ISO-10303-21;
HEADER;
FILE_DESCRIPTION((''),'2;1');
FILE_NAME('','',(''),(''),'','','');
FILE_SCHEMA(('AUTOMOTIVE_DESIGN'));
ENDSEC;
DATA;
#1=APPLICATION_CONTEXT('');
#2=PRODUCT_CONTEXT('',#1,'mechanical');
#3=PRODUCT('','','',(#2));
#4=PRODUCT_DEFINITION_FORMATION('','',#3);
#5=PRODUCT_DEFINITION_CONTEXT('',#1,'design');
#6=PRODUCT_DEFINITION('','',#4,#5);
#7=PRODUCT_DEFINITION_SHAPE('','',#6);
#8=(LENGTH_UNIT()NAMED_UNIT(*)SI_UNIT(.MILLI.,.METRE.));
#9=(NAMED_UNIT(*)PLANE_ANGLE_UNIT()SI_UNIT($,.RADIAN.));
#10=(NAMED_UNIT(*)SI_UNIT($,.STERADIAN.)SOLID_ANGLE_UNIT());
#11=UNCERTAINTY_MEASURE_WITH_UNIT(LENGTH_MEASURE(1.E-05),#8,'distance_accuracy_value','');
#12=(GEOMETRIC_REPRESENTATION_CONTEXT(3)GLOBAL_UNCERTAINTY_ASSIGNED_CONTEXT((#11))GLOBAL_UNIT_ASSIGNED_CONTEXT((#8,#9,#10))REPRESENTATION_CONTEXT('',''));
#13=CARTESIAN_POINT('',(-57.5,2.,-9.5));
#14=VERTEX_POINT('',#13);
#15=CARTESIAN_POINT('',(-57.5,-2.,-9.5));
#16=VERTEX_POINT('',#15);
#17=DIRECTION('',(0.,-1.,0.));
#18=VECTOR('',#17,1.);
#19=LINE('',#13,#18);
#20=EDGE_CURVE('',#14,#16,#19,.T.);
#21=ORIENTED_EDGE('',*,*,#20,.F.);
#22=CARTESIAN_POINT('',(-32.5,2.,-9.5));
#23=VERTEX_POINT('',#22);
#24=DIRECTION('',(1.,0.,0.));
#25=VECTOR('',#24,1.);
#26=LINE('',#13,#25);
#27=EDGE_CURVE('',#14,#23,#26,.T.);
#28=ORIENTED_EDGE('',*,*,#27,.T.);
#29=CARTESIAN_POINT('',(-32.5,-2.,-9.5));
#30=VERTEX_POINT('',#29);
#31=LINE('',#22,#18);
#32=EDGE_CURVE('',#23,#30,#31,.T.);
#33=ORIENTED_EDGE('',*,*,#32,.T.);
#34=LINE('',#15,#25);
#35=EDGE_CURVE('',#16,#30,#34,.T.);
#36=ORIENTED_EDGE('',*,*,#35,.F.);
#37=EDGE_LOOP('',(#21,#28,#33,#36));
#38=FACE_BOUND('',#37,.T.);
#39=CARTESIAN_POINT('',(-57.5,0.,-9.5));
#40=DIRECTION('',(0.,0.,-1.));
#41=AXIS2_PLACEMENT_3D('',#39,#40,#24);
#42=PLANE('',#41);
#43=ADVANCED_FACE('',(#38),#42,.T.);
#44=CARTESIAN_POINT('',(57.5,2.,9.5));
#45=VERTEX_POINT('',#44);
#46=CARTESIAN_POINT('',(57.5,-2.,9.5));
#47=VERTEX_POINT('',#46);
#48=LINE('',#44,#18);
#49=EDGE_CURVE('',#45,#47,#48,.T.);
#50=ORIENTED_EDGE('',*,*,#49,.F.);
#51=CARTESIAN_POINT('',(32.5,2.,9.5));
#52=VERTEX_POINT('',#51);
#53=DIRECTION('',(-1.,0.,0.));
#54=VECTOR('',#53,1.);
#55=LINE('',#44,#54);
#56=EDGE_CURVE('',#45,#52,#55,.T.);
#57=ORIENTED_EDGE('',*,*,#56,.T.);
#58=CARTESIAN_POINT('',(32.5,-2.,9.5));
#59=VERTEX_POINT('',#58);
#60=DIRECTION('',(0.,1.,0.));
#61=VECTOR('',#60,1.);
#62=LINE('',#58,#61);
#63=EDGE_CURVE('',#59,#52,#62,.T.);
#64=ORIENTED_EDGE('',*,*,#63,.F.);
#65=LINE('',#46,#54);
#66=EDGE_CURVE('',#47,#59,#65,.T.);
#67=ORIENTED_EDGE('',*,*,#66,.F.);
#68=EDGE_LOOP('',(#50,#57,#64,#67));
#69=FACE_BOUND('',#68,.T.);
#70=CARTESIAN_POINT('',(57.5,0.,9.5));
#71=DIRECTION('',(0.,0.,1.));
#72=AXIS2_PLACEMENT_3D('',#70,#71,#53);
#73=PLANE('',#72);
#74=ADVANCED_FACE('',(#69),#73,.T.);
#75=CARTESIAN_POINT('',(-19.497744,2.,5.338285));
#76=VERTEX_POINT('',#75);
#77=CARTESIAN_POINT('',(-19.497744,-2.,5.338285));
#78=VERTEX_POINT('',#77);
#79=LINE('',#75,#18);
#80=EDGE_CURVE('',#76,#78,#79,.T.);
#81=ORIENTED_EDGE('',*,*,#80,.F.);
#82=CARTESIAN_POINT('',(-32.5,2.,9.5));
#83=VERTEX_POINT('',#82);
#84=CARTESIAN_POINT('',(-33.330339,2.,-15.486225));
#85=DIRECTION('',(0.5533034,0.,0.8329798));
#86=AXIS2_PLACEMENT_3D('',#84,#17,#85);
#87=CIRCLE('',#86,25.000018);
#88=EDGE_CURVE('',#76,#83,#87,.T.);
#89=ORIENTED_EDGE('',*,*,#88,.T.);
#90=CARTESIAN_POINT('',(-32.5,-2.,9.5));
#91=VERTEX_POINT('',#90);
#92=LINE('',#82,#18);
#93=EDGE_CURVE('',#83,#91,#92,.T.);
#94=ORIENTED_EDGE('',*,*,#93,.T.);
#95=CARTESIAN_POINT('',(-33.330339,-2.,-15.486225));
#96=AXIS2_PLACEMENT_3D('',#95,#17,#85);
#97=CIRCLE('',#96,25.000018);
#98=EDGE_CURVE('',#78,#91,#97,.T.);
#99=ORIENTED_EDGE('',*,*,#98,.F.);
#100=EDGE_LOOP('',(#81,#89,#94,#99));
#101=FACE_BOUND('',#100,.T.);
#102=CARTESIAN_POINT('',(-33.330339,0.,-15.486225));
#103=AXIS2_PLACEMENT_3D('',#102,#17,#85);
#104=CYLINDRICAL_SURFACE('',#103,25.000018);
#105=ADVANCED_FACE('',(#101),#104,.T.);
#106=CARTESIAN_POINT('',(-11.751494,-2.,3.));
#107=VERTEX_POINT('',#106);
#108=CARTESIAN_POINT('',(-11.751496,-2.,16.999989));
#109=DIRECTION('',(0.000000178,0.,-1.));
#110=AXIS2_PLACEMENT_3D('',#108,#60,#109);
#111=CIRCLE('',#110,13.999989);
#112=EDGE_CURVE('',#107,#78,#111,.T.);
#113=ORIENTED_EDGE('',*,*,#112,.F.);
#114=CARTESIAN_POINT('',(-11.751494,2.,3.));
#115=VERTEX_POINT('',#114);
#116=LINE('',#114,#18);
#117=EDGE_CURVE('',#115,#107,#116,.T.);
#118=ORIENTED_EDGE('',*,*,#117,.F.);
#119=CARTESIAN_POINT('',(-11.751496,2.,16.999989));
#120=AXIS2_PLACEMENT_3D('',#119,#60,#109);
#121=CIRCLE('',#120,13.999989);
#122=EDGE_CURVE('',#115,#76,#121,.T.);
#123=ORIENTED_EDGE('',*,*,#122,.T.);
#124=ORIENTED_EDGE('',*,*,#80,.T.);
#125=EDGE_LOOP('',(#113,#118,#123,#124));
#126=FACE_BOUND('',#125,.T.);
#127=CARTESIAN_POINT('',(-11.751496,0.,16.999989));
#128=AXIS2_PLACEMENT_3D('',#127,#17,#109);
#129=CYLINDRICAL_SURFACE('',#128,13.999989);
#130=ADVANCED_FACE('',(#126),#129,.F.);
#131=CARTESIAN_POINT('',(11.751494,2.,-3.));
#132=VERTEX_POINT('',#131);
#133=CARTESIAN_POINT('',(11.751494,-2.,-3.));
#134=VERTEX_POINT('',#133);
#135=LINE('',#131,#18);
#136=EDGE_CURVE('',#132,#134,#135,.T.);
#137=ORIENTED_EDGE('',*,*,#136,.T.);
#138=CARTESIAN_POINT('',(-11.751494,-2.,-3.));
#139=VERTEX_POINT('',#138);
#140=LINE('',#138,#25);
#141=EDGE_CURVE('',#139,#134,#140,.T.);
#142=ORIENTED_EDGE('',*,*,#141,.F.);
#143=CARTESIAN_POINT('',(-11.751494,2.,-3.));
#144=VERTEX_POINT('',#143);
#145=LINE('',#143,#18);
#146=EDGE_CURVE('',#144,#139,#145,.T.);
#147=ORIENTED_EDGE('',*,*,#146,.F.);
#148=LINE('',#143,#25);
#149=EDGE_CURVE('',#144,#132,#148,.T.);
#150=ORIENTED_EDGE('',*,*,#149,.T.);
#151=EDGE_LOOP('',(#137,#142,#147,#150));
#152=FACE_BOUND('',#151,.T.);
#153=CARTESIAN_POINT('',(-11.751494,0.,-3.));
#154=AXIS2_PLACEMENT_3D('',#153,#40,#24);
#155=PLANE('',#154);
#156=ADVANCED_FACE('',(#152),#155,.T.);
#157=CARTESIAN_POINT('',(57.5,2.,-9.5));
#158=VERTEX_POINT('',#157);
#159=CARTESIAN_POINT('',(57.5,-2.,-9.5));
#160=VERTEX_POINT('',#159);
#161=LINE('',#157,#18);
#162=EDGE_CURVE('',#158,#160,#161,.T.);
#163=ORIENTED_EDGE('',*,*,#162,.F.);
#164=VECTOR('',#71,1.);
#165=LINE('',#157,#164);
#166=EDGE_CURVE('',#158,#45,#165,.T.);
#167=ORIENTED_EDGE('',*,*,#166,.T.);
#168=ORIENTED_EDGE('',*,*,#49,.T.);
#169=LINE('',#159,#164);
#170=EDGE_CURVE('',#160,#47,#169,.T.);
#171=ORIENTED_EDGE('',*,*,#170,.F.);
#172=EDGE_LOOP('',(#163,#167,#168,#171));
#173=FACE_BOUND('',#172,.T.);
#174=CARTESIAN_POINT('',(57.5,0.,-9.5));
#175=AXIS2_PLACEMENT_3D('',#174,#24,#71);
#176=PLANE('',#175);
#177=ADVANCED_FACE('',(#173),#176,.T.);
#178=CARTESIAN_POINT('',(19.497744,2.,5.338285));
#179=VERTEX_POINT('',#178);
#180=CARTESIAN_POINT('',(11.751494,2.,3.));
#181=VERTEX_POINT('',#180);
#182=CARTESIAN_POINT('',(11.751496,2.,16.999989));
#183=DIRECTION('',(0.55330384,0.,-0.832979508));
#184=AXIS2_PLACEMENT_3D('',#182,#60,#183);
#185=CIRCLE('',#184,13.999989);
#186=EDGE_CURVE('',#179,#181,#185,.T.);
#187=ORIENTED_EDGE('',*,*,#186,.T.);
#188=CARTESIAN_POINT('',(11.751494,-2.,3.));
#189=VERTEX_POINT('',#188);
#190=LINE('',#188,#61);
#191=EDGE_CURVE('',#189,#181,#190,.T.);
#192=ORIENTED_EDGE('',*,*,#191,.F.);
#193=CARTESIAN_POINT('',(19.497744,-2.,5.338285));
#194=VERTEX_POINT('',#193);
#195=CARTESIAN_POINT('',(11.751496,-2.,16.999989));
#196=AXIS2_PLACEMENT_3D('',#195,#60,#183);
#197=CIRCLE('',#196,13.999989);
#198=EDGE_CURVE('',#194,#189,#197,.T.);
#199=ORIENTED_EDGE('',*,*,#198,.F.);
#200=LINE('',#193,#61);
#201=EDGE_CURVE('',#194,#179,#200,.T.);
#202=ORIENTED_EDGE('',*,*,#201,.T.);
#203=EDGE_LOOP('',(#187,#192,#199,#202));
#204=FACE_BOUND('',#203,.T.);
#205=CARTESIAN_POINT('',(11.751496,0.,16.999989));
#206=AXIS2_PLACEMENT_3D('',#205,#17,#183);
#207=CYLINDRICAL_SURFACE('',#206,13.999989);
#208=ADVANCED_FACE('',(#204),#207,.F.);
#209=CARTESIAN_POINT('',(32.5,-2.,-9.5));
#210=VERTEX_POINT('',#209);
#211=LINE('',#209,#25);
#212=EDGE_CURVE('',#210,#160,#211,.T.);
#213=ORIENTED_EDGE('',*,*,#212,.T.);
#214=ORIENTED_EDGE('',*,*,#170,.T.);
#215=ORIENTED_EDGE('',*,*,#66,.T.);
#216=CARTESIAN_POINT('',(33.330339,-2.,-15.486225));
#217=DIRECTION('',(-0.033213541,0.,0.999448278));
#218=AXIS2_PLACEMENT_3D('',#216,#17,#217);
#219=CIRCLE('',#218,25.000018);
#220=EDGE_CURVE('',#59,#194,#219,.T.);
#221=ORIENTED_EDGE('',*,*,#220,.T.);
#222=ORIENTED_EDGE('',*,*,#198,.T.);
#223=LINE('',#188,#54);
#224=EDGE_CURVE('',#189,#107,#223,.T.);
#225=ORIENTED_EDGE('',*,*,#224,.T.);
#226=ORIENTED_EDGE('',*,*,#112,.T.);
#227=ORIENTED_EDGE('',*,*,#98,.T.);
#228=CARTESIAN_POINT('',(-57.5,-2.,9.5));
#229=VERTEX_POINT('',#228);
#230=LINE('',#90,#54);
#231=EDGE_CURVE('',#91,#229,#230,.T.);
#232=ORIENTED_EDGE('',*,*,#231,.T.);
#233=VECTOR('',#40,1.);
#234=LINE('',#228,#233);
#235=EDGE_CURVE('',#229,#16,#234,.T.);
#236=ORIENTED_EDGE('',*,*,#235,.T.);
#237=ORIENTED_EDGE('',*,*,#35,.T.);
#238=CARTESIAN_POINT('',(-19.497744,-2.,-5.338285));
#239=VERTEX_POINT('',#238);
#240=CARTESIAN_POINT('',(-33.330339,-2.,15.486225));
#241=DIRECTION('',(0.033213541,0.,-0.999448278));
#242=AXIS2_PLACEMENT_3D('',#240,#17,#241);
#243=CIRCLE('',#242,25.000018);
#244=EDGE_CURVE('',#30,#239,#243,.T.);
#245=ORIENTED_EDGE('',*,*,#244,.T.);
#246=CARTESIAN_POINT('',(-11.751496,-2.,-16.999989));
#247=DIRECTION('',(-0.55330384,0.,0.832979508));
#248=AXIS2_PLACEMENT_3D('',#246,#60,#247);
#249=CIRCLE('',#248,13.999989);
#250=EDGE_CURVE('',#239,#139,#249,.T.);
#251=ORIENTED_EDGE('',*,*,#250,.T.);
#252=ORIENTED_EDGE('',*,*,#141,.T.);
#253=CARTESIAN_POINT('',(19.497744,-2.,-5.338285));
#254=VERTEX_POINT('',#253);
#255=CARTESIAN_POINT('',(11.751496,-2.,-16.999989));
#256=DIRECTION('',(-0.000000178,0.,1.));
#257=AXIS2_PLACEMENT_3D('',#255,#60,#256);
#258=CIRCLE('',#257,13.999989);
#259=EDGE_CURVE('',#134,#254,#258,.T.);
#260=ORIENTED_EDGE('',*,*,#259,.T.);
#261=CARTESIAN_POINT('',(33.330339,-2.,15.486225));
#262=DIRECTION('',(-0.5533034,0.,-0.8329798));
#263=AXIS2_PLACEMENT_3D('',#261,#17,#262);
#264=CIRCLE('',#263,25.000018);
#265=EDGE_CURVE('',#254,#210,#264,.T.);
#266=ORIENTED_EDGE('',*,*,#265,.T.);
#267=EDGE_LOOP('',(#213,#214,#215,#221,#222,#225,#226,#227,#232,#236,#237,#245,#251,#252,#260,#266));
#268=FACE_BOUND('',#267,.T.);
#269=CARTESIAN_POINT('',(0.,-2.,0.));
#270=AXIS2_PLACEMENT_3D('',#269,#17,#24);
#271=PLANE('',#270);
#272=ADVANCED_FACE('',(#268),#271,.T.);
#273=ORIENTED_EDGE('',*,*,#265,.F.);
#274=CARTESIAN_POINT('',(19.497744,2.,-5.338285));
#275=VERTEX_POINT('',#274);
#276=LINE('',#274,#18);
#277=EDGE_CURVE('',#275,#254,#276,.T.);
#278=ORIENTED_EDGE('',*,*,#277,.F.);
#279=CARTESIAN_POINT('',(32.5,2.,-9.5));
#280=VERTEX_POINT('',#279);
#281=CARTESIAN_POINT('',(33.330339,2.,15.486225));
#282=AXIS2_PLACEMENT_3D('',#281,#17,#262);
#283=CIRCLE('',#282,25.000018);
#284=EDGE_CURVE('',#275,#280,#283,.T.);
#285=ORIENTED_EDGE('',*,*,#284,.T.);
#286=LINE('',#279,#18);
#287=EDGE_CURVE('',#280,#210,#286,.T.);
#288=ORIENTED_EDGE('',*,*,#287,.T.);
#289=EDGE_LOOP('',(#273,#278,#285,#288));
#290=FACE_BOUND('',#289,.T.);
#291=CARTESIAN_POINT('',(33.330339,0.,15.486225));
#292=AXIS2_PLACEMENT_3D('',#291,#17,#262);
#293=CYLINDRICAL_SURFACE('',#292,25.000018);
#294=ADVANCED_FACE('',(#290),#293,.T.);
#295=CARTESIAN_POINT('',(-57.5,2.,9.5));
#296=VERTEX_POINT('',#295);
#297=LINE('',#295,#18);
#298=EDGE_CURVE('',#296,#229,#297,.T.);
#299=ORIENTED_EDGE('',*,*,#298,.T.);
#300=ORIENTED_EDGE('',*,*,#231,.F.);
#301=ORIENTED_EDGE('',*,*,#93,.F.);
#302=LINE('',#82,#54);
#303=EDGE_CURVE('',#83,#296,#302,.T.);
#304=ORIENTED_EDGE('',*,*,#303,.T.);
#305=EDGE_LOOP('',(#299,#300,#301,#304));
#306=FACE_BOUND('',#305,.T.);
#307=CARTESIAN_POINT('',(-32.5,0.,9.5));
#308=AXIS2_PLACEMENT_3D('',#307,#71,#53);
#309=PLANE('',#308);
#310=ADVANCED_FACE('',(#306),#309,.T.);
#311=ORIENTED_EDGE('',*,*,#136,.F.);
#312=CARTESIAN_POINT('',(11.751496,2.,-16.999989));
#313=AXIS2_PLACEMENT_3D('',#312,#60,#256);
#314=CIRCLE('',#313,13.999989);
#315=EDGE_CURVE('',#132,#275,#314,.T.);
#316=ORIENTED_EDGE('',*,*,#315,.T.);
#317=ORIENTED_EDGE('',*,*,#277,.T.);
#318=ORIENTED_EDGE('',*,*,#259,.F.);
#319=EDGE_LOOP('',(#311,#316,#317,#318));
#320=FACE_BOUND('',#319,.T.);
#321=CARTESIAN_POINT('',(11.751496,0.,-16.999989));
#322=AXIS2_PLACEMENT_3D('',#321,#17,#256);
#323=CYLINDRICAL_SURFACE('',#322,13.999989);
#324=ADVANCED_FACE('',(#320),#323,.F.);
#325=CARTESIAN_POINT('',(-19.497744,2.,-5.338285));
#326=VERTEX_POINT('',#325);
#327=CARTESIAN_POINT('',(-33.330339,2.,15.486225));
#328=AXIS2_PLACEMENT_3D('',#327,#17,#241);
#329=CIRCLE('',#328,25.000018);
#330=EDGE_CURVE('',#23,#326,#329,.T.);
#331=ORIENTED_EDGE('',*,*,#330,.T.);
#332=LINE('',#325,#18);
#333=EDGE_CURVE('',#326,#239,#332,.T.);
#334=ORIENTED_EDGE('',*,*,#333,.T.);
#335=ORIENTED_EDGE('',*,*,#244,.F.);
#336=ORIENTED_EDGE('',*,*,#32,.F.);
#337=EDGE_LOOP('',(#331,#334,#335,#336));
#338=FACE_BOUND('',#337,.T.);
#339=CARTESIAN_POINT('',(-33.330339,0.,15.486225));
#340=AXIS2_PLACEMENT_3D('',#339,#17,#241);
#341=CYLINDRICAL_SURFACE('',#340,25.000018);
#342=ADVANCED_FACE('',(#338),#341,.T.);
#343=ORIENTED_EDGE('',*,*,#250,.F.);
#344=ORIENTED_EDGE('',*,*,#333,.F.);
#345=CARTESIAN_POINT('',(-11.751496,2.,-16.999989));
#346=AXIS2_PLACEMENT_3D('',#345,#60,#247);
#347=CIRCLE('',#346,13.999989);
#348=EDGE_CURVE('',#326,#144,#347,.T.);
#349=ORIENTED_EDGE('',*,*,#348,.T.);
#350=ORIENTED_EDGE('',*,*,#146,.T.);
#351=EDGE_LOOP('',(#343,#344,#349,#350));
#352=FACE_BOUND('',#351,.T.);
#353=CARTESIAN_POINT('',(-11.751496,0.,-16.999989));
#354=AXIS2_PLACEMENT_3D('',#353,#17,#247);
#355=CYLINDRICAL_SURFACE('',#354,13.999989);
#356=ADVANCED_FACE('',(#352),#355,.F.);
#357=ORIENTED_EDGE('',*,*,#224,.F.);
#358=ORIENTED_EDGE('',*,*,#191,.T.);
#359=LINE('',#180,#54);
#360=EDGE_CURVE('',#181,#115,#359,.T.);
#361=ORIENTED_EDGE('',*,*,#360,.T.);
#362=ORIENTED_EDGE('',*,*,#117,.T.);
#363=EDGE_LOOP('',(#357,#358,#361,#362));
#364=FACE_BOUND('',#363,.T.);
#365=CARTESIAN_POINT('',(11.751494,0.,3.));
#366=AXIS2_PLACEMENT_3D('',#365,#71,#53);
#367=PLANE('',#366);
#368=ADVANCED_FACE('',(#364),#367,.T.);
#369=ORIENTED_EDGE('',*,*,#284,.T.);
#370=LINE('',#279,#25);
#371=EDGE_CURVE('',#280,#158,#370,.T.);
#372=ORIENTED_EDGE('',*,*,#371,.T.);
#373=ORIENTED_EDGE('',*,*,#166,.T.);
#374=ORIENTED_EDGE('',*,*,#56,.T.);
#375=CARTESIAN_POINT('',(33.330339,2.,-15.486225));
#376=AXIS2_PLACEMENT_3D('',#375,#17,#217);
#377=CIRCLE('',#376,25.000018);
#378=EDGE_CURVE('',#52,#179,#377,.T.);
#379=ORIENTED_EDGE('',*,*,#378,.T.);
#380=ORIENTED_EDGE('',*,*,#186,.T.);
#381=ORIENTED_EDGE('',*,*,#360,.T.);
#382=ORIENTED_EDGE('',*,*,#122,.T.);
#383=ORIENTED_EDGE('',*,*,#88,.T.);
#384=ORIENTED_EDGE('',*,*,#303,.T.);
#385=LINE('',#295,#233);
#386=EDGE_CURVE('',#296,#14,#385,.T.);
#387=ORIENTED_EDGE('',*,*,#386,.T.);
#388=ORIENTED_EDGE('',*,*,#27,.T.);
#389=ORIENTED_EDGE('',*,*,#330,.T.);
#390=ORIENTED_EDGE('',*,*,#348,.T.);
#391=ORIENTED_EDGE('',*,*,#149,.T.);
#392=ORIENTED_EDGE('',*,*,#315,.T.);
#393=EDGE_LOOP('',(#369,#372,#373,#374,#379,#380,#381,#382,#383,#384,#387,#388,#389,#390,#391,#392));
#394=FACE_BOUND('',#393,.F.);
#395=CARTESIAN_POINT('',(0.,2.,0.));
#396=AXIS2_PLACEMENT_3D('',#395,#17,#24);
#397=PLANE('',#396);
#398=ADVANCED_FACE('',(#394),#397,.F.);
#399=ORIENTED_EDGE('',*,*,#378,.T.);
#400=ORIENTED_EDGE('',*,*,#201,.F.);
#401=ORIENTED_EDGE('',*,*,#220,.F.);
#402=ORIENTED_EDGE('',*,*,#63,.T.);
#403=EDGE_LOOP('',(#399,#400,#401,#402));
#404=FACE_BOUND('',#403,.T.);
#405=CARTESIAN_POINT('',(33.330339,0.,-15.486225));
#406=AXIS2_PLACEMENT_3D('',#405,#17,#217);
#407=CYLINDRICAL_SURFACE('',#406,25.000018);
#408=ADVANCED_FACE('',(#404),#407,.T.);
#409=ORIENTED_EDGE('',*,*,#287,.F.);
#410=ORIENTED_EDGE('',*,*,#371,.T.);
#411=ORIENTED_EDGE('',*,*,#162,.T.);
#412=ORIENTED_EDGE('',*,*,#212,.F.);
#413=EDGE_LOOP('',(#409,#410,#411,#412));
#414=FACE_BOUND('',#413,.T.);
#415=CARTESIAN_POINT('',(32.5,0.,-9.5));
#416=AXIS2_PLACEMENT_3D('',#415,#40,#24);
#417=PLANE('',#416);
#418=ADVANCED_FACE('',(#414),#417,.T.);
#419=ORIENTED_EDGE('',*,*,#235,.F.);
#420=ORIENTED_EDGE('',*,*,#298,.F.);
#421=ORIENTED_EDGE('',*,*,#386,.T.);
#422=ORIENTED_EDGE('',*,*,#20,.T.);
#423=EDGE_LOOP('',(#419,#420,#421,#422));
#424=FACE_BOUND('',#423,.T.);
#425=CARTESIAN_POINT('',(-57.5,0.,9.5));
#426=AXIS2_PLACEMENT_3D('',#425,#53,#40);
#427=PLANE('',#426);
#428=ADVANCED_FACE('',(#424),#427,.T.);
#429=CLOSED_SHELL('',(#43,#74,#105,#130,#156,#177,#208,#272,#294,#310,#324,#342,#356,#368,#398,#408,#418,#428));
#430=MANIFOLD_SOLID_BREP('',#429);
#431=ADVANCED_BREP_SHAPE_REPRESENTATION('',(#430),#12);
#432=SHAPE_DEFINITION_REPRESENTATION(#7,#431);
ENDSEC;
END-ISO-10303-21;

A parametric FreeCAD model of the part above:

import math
import FreeCAD as App
import Part
import Sketcher
Q = App.Units.Quantity

doc = App.newDocument("Part")
params = doc.addObject("Spreadsheet::Sheet", "Params")
for row, (alias, value) in enumerate([
    ("sketch1_width", "25 mm"),
    ("sketch1_height", "19 mm"),
    ("pad1_length", "4 mm"),
], start=1):
    params.set(f"A{row}", alias)
    params.set(f"B{row}", "=" + value)
    params.setAlias(f"B{row}", alias)

body = doc.addObject("PartDesign::Body", "Body")

# Sketch on XZ plane
sketch1 = doc.addObject("Sketcher::SketchObject", "Sketch")
body.addObject(sketch1)
sketch1.AttachmentSupport = (doc.XZ_Plane, [""])
sketch1.MapMode = "FlatFace"
sketch1.addGeometry(Part.LineSegment(App.Vector(11.751494, 3, 0), App.Vector(-11.751494, 3, 0)), False)
sketch1.addGeometry(Part.ArcOfCircle(Part.Circle(App.Vector(-11.751496, 16.999989, 0), App.Vector(0, 0, 1), 13.999989), math.radians(-123.593967), math.radians(-89.99999)), False)
sketch1.addGeometry(Part.ArcOfCircle(Part.Circle(App.Vector(-33.330339, -15.486225, 0), App.Vector(0, 0, 1), 25.000018), math.radians(56.406063), math.radians(88.096654)), False)
sketch1.addGeometry(Part.LineSegment(App.Vector(-32.5, 9.5, 0), App.Vector(-57.5, 9.5, 0)), False)
sketch1.addGeometry(Part.LineSegment(App.Vector(-57.5, 9.5, 0), App.Vector(-57.5, -9.5, 0)), False)
sketch1.addGeometry(Part.LineSegment(App.Vector(-57.5, -9.5, 0), App.Vector(-32.5, -9.5, 0)), False)
sketch1.addGeometry(Part.ArcOfCircle(Part.Circle(App.Vector(-33.330339, 15.486225, 0), App.Vector(0, 0, 1), 25.000018), math.radians(-88.096654), math.radians(-56.406063)), False)
sketch1.addGeometry(Part.ArcOfCircle(Part.Circle(App.Vector(-11.751496, -16.999989, 0), App.Vector(0, 0, 1), 13.999989), math.radians(89.99999), math.radians(123.593967)), False)
sketch1.addGeometry(Part.LineSegment(App.Vector(-11.751494, -3, 0), App.Vector(11.751494, -3, 0)), False)
sketch1.addGeometry(Part.ArcOfCircle(Part.Circle(App.Vector(11.751496, -16.999989, 0), App.Vector(0, 0, 1), 13.999989), math.radians(56.406033), math.radians(90.00001)), False)
sketch1.addGeometry(Part.ArcOfCircle(Part.Circle(App.Vector(33.330339, 15.486225, 0), App.Vector(0, 0, 1), 25.000018), math.radians(-123.593937), math.radians(-91.903346)), False)
sketch1.addGeometry(Part.LineSegment(App.Vector(32.5, -9.5, 0), App.Vector(57.5, -9.5, 0)), False)
sketch1.addGeometry(Part.LineSegment(App.Vector(57.5, -9.5, 0), App.Vector(57.5, 9.5, 0)), False)
sketch1.addGeometry(Part.LineSegment(App.Vector(57.5, 9.5, 0), App.Vector(32.5, 9.5, 0)), False)
sketch1.addGeometry(Part.ArcOfCircle(Part.Circle(App.Vector(33.330339, -15.486225, 0), App.Vector(0, 0, 1), 25.000018), math.radians(91.903346), math.radians(123.593937)), False)
sketch1.addGeometry(Part.ArcOfCircle(Part.Circle(App.Vector(11.751496, 16.999989, 0), App.Vector(0, 0, 1), 13.999989), math.radians(-90.00001), math.radians(-56.406033)), False)
sketch1.addConstraint(Sketcher.Constraint("Tangent", 0, 2, 1, 2))
sketch1.addConstraint(Sketcher.Constraint("Tangent", 1, 1, 2, 1))
sketch1.addConstraint(Sketcher.Constraint("Coincident", 2, 2, 3, 1))
sketch1.addConstraint(Sketcher.Constraint("Coincident", 3, 2, 4, 1))
sketch1.addConstraint(Sketcher.Constraint("Coincident", 4, 2, 5, 1))
sketch1.addConstraint(Sketcher.Constraint("Coincident", 5, 2, 6, 1))
sketch1.addConstraint(Sketcher.Constraint("Tangent", 6, 2, 7, 2))
sketch1.addConstraint(Sketcher.Constraint("Tangent", 7, 1, 8, 1))
sketch1.addConstraint(Sketcher.Constraint("Tangent", 8, 2, 9, 2))
sketch1.addConstraint(Sketcher.Constraint("Tangent", 9, 1, 10, 1))
sketch1.addConstraint(Sketcher.Constraint("Coincident", 10, 2, 11, 1))
sketch1.addConstraint(Sketcher.Constraint("Coincident", 11, 2, 12, 1))
sketch1.addConstraint(Sketcher.Constraint("Coincident", 12, 2, 13, 1))
sketch1.addConstraint(Sketcher.Constraint("Coincident", 13, 2, 14, 1))
sketch1.addConstraint(Sketcher.Constraint("Tangent", 14, 2, 15, 2))
sketch1.addConstraint(Sketcher.Constraint("Tangent", 15, 1, 0, 1))
sketch1.addConstraint(Sketcher.Constraint("Horizontal", 0))
sketch1.addConstraint(Sketcher.Constraint("Horizontal", 3))
sketch1.addConstraint(Sketcher.Constraint("Vertical", 4))
sketch1.addConstraint(Sketcher.Constraint("Horizontal", 5))
sketch1.addConstraint(Sketcher.Constraint("Horizontal", 8))
sketch1.addConstraint(Sketcher.Constraint("Horizontal", 11))
sketch1.addConstraint(Sketcher.Constraint("Vertical", 12))
sketch1.addConstraint(Sketcher.Constraint("Horizontal", 13))
sketch1.addConstraint(Sketcher.Constraint("Equal", 2, 6))
sketch1.addConstraint(Sketcher.Constraint("Equal", 1, 7))
sketch1.addConstraint(Sketcher.Constraint("Equal", 7, 9))
sketch1.addConstraint(Sketcher.Constraint("Equal", 6, 10))
sketch1.addConstraint(Sketcher.Constraint("Equal", 10, 14))
sketch1.addConstraint(Sketcher.Constraint("Equal", 9, 15))
sketch1.addConstraint(Sketcher.Constraint("Symmetric", 1, 3, 9, 3, -1, 1))
sketch1.addConstraint(Sketcher.Constraint("Symmetric", 6, 3, 14, 3, -1, 1))
sketch1.addConstraint(Sketcher.Constraint("Symmetric", 2, 2, 10, 2, -1, 1))
sketch1.addConstraint(Sketcher.Constraint("Symmetric", 4, 2, 12, 2, -1, 1))
sketch1.addConstraint(Sketcher.Constraint("Symmetric", 6, 3, 10, 3, -2))
sketch1.addConstraint(Sketcher.Constraint("Horizontal", 5, 2, 10, 2))
sketch1.addConstraint(Sketcher.Constraint("DistanceX", 3, 2, 3, 1, Q("25 mm")))
sketch1.addConstraint(Sketcher.Constraint("DistanceY", 4, 2, 4, 1, Q("19 mm")))
sketch1.addConstraint(Sketcher.Constraint("DistanceY", -1, 1, 0, 2, Q("3 mm")))
sketch1.addConstraint(Sketcher.Constraint("DistanceX", 2, 2, -1, 1, Q("32.5 mm")))
sketch1.addConstraint(Sketcher.Constraint("Radius", 1, Q("13.999989 mm")))
sketch1.addConstraint(Sketcher.Constraint("Radius", 2, Q("25.000018 mm")))
sketch1.addConstraint(Sketcher.Constraint("DistanceX", 0, 2, 0, 1, Q("23.502988 mm")))
sketch1.setExpression("Constraints[36]", "Params.sketch1_width")
sketch1.setExpression("Constraints[37]", "Params.sketch1_height")
pad1 = doc.addObject("PartDesign::Pad", "Pad")
body.addObject(pad1)
pad1.Profile = sketch1
pad1.setExpression("Length", "Params.pad1_length")
pad1.Midplane = True

doc.recompute()
